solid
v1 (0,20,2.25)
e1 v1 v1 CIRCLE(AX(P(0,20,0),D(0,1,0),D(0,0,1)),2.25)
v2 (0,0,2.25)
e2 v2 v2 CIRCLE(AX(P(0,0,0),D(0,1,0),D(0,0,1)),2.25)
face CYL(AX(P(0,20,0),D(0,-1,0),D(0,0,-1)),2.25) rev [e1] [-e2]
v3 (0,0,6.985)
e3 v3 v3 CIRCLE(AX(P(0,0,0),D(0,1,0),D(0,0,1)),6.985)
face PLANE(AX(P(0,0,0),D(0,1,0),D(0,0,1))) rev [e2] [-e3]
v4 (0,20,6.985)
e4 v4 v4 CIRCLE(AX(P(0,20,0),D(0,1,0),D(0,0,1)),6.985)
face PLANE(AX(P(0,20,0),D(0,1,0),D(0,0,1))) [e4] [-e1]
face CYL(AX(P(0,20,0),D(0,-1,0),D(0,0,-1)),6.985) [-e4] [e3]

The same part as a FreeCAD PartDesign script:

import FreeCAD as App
import Part
import Sketcher
Q = App.Units.Quantity

doc = App.newDocument("Part")
body = doc.addObject("PartDesign::Body", "Body")

# Sketch on XZ plane
sketch1 = doc.addObject("Sketcher::SketchObject", "Sketch")
body.addObject(sketch1)
sketch1.AttachmentSupport = (doc.XZ_Plane, [""])
sketch1.MapMode = "FlatFace"
sketch1.addGeometry(Part.Circle(App.Vector(0, 0, 0), App.Vector(0, 0, 1), 6.985), False)
sketch1.addGeometry(Part.Circle(App.Vector(0, 0, 0), App.Vector(0, 0, 1), 2.25), False)
sketch1.addConstraint(Sketcher.Constraint("Coincident", 0, 3, -1, 1))
sketch1.addConstraint(Sketcher.Constraint("Coincident", 1, 3, -1, 1))
sketch1.addConstraint(Sketcher.Constraint("Diameter", 1, Q("4.5 mm")))
sketch1.addConstraint(Sketcher.Constraint("Diameter", 0, Q("13.97 mm")))
pad1 = doc.addObject("PartDesign::Pad", "Pad")
body.addObject(pad1)
pad1.Profile = sketch1
pad1.Length = 20
pad1.Reversed = True

doc.recompute()
